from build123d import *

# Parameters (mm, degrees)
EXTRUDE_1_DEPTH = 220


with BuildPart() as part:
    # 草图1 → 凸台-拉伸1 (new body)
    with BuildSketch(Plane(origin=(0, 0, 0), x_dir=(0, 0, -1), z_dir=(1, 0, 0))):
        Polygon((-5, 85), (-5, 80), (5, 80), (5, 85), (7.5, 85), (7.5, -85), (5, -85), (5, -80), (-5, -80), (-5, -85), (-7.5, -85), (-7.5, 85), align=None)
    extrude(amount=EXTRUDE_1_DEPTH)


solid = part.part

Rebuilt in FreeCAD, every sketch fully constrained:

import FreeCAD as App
import Part
import Sketcher
from FreeCAD import Vector
Q = App.Units.Quantity


def add_polygon(sketch, points):
    """Adds a closed chain of lines whose ends are joined by coincident constraints."""
    first, n = sketch.GeometryCount, len(points)
    for a, b in zip(points, points[1:] + points[:1]):
        sketch.addGeometry(Part.LineSegment(App.Vector(*a, 0), App.Vector(*b, 0)), False)
    for i in range(n):
        sketch.addConstraint(Sketcher.Constraint("Coincident", first + i, 2, first + (i + 1) % n, 1))

doc = App.newDocument("Part")
params = doc.addObject("Spreadsheet::Sheet", "Params")
for row, (alias, value) in enumerate([
    ("sketch1_width", "5 mm"),
    ("sketch1_width2", "170 mm"),
    ("sketch1_height", "10 mm"),
    ("sketch1_height2", "2.5 mm"),
    ("pad1_length", "220 mm"),
], start=1):
    params.set(f"A{row}", alias)
    params.set(f"B{row}", "=" + value)
    params.setAlias(f"B{row}", alias)

body = doc.addObject("PartDesign::Body", "Body")

sketch1 = body.newObject("Sketcher::SketchObject", "Sketch")
sketch1.AttachmentSupport = (doc.getObject("YZ_Plane"), [""])
sketch1.MapMode = "FlatFace"
add_polygon(sketch1, [(80, 5), (85, 5), (85, 7.5), (-85, 7.5), (-85, 5), (-80, 5), (-80, -5), (-85, -5), (-85, -7.5), (85, -7.5), (85, -5), (80, -5)])
sketch1.addConstraint([
    Sketcher.Constraint("Horizontal", 0),
    Sketcher.Constraint("Vertical", 1),
    Sketcher.Constraint("Horizontal", 2),
    Sketcher.Constraint("Vertical", 3),
    Sketcher.Constraint("Horizontal", 4),
    Sketcher.Constraint("Vertical", 5),
    Sketcher.Constraint("Horizontal", 6),
    Sketcher.Constraint("Vertical", 7),
    Sketcher.Constraint("Horizontal", 8),
    Sketcher.Constraint("Vertical", 9),
    Sketcher.Constraint("Horizontal", 10),
    Sketcher.Constraint("Vertical", 11),
    Sketcher.Constraint("Symmetric", 0, 2, 6, 2, -1, 1),
    Sketcher.Constraint("Symmetric", 2, 2, 8, 2, -1, 1),
    Sketcher.Constraint("Symmetric", 4, 2, 10, 2, -1, 1),
    Sketcher.Constraint("Symmetric", 0, 2, 3, 2, -2),
    Sketcher.Constraint("DistanceX", 0, 1, 0, 2, Q("5 mm")),
    Sketcher.Constraint("DistanceX", 2, 2, 2, 1, Q("170 mm")),
    Sketcher.Constraint("DistanceY", 5, 2, 5, 1, Q("10 mm")),
    Sketcher.Constraint("DistanceY", 1, 1, 1, 2, Q("2.5 mm")),
])
sketch1.setExpression("Constraints[28]", "Params.sketch1_width")
sketch1.setExpression("Constraints[29]", "Params.sketch1_width2")
sketch1.setExpression("Constraints[30]", "Params.sketch1_height")
sketch1.setExpression("Constraints[31]", "Params.sketch1_height2")
pad1 = body.newObject("PartDesign::Pad", "Pad")
pad1.Profile = sketch1
pad1.setExpression("Length", "Params.pad1_length")

doc.recompute()
